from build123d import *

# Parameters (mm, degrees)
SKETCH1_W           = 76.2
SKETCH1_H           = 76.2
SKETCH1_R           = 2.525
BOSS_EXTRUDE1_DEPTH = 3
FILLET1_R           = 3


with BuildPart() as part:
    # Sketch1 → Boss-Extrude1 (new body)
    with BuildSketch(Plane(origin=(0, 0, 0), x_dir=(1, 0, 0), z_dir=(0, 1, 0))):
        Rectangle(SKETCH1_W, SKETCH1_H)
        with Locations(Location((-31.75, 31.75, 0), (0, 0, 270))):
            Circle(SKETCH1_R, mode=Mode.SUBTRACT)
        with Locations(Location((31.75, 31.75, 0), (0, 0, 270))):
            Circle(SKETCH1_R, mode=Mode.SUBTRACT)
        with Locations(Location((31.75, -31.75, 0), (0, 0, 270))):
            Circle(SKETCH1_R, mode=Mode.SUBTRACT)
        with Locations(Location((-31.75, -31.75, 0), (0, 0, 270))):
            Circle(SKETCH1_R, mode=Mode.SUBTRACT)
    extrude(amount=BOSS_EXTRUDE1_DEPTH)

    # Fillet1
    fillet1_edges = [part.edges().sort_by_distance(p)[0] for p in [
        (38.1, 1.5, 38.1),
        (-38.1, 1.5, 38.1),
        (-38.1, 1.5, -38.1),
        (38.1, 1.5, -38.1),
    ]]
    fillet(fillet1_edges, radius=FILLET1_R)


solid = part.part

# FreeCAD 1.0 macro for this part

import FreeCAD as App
import Part
import Sketcher


def edges_at(feature, points):
    """Names of the edges that pass closest to the given points."""
    edges = feature.Shape.Edges
    near = lambda p: min(range(len(edges)), key=lambda i: edges[i].distToShape(Part.Vertex(*p))[0])
    return sorted({f"Edge{near(p) + 1}" for p in points})

doc = App.newDocument("Part")
body = doc.addObject("PartDesign::Body", "Body")

# Sketch on XZ plane
sketch1 = body.newObject("Sketcher::SketchObject", "Sketch")
sketch1.AttachmentSupport = (doc.getObject("XZ_Plane"), [""])
sketch1.MapMode = "FlatFace"
sketch1.addGeometry(Part.LineSegment(App.Vector(-38.1, -38.1, 0), App.Vector(-38.1, 38.1, 0)), False)
sketch1.addGeometry(Part.LineSegment(App.Vector(-38.1, 38.1, 0), App.Vector(38.1, 38.1, 0)), False)
sketch1.addGeometry(Part.LineSegment(App.Vector(38.1, 38.1, 0), App.Vector(38.1, -38.1, 0)), False)
sketch1.addGeometry(Part.LineSegment(App.Vector(38.1, -38.1, 0), App.Vector(-38.1, -38.1, 0)), False)
sketch1.addGeometry(Part.Circle(App.Vector(-31.75, 31.75, 0), App.Vector(0, 0, 1), 2.525), False)
sketch1.addGeometry(Part.Circle(App.Vector(31.75, 31.75, 0), App.Vector(0, 0, 1), 2.525), False)
sketch1.addGeometry(Part.Circle(App.Vector(-31.75, -31.75, 0), App.Vector(0, 0, 1), 2.525), False)
sketch1.addGeometry(Part.Circle(App.Vector(31.75, -31.75, 0), App.Vector(0, 0, 1), 2.525), False)
sketch1.addConstraint(Sketcher.Constraint("Coincident", 0, 2, 1, 1))
sketch1.addConstraint(Sketcher.Constraint("Coincident", 1, 2, 2, 1))
sketch1.addConstraint(Sketcher.Constraint("Coincident", 2, 2, 3, 1))
sketch1.addConstraint(Sketcher.Constraint("Coincident", 3, 2, 0, 1))
sketch1.addConstraint(Sketcher.Constraint("Vertical", 0))
sketch1.addConstraint(Sketcher.Constraint("Horizontal", 1))
sketch1.addConstraint(Sketcher.Constraint("Vertical", 2))
sketch1.addConstraint(Sketcher.Constraint("Horizontal", 3))
sketch1.addConstraint(Sketcher.Constraint("Equal", 4, 5))
sketch1.addConstraint(Sketcher.Constraint("Equal", 5, 6))
sketch1.addConstraint(Sketcher.Constraint("Equal", 6, 7))
sketch1.addConstraint(Sketcher.Constraint("Symmetric", 5, 3, 6, 3, -1, 1))
sketch1.addConstraint(Sketcher.Constraint("Symmetric", 4, 3, 7, 3, -1, 1))
sketch1.addConstraint(Sketcher.Constraint("Symmetric", 0, 2, 2, 2, -1, 1))
sketch1.addConstraint(Sketcher.Constraint("Symmetric", 4, 3, 5, 3, -2))
sketch1.addConstraint(Sketcher.Constraint("Equal", 3, 0))
sketch1.addConstraint(Sketcher.Constraint("Diameter", 4, 5.05))
sketch1.addConstraint(Sketcher.Constraint("DistanceX", 1, 1, 1, 2, 76.2))
sketch1.addConstraint(Sketcher.Constraint("DistanceX", 4, 3, 5, 3, 63.5))
sketch1.addConstraint(Sketcher.Constraint("DistanceY", 6, 3, 4, 3, 63.5))
pad1 = body.newObject("PartDesign::Pad", "Pad")
pad1.Profile = sketch1
pad1.Length = 3
pad1.Reversed = True
doc.recompute()

fillet = body.newObject("PartDesign::Fillet", "Fillet")
fillet.Base = (pad1, edges_at(pad1, [
    (38.1, 1.5, 38.1),
    (-38.1, 1.5, 38.1),
    (-38.1, 1.5, -38.1),
    (38.1, 1.5, -38.1),
]))
fillet.Radius = 3

doc.recompute()
